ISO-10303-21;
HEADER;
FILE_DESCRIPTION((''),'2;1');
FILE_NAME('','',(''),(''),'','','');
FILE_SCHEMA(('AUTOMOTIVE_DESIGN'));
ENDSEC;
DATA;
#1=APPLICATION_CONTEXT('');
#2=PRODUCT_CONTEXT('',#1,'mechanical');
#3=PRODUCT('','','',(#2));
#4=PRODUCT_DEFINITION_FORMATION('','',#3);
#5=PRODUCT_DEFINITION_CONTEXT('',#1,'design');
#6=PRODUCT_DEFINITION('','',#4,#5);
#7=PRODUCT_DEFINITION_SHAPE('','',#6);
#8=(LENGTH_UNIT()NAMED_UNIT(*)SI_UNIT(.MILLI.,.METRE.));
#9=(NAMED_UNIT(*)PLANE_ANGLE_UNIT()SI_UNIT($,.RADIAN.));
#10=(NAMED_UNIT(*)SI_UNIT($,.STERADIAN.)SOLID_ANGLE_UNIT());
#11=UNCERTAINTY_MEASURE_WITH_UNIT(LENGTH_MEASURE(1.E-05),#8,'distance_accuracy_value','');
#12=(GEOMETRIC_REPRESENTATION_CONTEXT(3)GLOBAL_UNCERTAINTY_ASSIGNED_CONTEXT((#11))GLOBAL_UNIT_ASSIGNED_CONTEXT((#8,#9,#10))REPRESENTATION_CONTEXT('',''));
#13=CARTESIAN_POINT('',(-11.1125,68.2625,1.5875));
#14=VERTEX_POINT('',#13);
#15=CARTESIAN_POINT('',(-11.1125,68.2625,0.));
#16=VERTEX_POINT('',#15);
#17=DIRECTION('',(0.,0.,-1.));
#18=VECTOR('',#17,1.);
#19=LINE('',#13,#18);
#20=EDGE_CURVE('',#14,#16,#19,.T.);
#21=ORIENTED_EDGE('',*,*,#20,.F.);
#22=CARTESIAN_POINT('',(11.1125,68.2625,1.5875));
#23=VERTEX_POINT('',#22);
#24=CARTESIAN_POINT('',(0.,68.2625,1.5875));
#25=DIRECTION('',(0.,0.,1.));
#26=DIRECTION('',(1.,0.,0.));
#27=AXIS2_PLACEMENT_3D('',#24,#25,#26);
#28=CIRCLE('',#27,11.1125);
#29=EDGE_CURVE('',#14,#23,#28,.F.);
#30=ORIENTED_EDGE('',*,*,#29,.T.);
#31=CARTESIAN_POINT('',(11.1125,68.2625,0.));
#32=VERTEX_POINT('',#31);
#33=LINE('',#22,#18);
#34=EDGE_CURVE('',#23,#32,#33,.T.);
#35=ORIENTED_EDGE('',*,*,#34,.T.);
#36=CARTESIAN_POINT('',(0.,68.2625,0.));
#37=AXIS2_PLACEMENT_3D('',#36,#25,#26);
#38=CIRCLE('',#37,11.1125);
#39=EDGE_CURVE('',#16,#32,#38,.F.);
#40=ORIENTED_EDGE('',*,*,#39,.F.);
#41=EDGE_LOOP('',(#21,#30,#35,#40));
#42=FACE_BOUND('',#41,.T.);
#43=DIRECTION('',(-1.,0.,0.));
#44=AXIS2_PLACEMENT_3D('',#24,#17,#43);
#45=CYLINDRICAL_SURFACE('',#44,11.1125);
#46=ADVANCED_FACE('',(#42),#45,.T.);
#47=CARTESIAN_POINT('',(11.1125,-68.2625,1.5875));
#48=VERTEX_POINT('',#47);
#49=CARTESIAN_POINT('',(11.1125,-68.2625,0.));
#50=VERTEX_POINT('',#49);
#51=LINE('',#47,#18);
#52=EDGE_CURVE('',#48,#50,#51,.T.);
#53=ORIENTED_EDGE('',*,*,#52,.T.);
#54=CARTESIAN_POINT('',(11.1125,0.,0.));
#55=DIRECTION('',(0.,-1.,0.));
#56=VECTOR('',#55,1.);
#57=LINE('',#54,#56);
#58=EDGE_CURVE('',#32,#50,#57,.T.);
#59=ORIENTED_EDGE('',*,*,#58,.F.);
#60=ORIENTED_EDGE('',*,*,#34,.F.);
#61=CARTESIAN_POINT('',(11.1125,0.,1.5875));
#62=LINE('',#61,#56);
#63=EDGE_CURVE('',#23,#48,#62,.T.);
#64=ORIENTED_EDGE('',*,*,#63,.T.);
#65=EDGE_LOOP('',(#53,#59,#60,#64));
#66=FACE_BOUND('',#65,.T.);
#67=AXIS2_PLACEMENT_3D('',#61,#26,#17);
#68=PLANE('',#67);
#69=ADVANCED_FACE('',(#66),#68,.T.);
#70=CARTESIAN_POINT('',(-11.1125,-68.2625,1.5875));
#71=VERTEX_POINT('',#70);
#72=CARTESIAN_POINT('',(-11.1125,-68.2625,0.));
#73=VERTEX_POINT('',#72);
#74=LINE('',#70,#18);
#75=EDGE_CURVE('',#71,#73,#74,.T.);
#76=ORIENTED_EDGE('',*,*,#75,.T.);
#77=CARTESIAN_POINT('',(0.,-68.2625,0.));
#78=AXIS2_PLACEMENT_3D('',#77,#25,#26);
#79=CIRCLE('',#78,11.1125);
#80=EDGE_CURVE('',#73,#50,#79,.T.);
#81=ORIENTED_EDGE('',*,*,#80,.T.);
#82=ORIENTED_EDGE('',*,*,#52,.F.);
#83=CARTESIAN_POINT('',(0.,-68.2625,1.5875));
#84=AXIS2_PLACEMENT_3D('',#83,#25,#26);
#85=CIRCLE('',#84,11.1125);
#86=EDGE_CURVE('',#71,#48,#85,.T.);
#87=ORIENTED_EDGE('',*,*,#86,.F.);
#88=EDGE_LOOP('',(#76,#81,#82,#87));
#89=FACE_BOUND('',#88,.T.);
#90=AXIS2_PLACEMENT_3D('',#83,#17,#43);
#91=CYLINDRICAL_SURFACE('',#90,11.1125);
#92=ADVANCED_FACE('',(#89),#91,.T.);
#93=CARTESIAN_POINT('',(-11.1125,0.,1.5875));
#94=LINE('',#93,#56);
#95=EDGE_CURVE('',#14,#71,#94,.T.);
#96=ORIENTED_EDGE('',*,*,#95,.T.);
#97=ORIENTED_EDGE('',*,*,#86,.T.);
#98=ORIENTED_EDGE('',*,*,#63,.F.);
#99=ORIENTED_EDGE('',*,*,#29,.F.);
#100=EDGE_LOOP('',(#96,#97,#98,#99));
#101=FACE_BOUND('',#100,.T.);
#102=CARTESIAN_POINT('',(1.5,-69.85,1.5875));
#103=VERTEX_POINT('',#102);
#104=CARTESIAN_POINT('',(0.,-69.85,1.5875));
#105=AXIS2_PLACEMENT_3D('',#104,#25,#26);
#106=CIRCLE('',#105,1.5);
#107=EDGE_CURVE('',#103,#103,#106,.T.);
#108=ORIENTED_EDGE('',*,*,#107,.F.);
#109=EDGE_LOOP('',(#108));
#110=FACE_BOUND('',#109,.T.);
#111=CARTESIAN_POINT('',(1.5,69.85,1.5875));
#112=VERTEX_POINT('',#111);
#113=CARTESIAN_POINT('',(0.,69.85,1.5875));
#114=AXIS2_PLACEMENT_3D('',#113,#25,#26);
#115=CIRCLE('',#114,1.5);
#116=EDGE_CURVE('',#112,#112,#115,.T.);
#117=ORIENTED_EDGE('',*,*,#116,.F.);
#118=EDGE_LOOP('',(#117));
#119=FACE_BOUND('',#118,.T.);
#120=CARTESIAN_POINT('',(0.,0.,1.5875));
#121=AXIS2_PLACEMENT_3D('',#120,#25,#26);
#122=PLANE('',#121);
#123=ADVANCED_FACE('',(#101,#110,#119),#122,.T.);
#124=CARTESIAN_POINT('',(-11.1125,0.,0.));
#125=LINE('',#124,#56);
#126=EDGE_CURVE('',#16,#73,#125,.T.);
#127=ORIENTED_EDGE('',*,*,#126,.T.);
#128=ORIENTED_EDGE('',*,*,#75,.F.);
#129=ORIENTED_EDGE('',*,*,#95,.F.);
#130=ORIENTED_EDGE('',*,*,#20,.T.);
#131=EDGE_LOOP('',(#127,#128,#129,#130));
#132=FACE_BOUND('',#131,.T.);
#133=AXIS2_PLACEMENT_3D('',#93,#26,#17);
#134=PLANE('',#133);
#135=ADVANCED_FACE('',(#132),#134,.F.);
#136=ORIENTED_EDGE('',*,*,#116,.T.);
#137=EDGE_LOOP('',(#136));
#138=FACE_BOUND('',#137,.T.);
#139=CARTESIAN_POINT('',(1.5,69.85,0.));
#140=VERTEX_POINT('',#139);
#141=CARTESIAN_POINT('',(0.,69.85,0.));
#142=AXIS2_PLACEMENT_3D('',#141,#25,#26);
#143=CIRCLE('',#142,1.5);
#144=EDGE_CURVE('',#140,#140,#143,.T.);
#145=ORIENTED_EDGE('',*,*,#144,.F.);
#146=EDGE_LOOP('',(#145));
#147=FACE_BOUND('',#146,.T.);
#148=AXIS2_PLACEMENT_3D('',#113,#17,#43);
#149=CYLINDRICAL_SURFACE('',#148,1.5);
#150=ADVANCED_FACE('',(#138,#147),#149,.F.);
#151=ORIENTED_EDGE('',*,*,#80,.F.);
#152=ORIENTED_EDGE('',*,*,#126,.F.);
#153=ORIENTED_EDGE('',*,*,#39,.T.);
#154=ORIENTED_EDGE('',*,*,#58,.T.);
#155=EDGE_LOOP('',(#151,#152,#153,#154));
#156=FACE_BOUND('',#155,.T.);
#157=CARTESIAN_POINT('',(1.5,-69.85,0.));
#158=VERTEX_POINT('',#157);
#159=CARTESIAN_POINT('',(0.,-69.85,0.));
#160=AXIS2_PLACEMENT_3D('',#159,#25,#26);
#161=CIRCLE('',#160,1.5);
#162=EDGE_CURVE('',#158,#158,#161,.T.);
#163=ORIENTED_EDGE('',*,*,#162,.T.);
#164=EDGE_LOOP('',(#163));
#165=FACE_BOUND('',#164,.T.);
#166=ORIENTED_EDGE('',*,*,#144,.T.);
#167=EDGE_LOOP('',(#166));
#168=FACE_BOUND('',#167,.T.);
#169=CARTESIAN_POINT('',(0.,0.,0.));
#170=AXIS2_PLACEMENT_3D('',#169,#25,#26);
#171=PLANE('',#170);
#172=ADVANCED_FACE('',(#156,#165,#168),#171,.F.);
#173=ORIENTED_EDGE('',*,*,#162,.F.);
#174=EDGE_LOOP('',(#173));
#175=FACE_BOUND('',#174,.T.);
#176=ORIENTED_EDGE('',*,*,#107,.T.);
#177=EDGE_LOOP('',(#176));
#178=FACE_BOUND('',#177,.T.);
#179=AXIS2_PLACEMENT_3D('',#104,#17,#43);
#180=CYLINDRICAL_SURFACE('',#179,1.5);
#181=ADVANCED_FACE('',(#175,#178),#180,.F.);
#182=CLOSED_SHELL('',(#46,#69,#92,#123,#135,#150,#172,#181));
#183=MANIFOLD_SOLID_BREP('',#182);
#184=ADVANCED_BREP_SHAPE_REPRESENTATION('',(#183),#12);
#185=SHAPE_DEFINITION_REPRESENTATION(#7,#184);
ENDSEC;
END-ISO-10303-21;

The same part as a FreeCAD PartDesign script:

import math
import FreeCAD as App
import Part
import Sketcher

V = App.Vector
Q = App.Units.Quantity

doc = App.newDocument("Part")
params = doc.addObject("Spreadsheet::Sheet", "Params")
for row, (alias, value) in enumerate([
    ("sketch1_radius", "0.4375 in"),
    ("sketch1_height", "5.375 in"),
    ("pad1_length", "0.0625 in"),
], start=1):
    params.set(f"A{row}", alias)
    params.set(f"B{row}", "=" + value)
    params.setAlias(f"B{row}", alias)

body = doc.addObject("PartDesign::Body", "Body")

# Sketch on XY plane
sketch1 = body.newObject("Sketcher::SketchObject", "Sketch")
sketch1.AttachmentSupport = (doc.getObject("XY_Plane"), [""])
sketch1.MapMode = "FlatFace"
sketch1.addGeometry([
    Part.ArcOfCircle(Part.Circle(V(0, 68.2625, 0), V(0, 0, 1), 11.1125), math.radians(0), math.radians(180)),  # 0
    Part.LineSegment(V(-11.1125, 68.2625, 0), V(-11.1125, -68.2625, 0)),  # 1
    Part.ArcOfCircle(Part.Circle(V(0, -68.2625, 0), V(0, 0, 1), 11.1125), math.radians(180), math.radians(360)),  # 2
    Part.LineSegment(V(11.1125, -68.2625, 0), V(11.1125, 68.2625, 0)),  # 3
    Part.Circle(V(0, 69.85, 0), V(0, 0, 1), 1.5),  # 4
    Part.Circle(V(0, -69.85, 0), V(0, 0, 1), 1.5),  # 5
], False)
sketch1.addConstraint([
    Sketcher.Constraint("Tangent", 0, 2, 1, 1),
    Sketcher.Constraint("Tangent", 1, 2, 2, 1),
    Sketcher.Constraint("Tangent", 2, 2, 3, 1),
    Sketcher.Constraint("Tangent", 3, 2, 0, 1),
    Sketcher.Constraint("Vertical", 1),
    Sketcher.Constraint("Vertical", 3),
    Sketcher.Constraint("Equal", 4, 5),
    Sketcher.Constraint("Symmetric", 0, 3, 2, 3, -1, 1),
    Sketcher.Constraint("Symmetric", 4, 3, 5, 3, -1, 1),
    Sketcher.Constraint("PointOnObject", 4, 3, -2),
    Sketcher.Constraint("Radius", 0, Q("0.4375 in")),
    Sketcher.Constraint("DistanceY", 5, 3, 4, 3, Q("5.5 in")),
    Sketcher.Constraint("Diameter", 4, Q("3 mm")),
    Sketcher.Constraint("DistanceY", 1, 2, 1, 1, Q("5.375 in")),
])
sketch1.setExpression("Constraints[10]", "Params.sketch1_radius")
sketch1.setExpression("Constraints[13]", "Params.sketch1_height")
pad1 = body.newObject("PartDesign::Pad", "Pad")
pad1.Profile = sketch1
pad1.setExpression("Length", "Params.pad1_length")

doc.recompute()
